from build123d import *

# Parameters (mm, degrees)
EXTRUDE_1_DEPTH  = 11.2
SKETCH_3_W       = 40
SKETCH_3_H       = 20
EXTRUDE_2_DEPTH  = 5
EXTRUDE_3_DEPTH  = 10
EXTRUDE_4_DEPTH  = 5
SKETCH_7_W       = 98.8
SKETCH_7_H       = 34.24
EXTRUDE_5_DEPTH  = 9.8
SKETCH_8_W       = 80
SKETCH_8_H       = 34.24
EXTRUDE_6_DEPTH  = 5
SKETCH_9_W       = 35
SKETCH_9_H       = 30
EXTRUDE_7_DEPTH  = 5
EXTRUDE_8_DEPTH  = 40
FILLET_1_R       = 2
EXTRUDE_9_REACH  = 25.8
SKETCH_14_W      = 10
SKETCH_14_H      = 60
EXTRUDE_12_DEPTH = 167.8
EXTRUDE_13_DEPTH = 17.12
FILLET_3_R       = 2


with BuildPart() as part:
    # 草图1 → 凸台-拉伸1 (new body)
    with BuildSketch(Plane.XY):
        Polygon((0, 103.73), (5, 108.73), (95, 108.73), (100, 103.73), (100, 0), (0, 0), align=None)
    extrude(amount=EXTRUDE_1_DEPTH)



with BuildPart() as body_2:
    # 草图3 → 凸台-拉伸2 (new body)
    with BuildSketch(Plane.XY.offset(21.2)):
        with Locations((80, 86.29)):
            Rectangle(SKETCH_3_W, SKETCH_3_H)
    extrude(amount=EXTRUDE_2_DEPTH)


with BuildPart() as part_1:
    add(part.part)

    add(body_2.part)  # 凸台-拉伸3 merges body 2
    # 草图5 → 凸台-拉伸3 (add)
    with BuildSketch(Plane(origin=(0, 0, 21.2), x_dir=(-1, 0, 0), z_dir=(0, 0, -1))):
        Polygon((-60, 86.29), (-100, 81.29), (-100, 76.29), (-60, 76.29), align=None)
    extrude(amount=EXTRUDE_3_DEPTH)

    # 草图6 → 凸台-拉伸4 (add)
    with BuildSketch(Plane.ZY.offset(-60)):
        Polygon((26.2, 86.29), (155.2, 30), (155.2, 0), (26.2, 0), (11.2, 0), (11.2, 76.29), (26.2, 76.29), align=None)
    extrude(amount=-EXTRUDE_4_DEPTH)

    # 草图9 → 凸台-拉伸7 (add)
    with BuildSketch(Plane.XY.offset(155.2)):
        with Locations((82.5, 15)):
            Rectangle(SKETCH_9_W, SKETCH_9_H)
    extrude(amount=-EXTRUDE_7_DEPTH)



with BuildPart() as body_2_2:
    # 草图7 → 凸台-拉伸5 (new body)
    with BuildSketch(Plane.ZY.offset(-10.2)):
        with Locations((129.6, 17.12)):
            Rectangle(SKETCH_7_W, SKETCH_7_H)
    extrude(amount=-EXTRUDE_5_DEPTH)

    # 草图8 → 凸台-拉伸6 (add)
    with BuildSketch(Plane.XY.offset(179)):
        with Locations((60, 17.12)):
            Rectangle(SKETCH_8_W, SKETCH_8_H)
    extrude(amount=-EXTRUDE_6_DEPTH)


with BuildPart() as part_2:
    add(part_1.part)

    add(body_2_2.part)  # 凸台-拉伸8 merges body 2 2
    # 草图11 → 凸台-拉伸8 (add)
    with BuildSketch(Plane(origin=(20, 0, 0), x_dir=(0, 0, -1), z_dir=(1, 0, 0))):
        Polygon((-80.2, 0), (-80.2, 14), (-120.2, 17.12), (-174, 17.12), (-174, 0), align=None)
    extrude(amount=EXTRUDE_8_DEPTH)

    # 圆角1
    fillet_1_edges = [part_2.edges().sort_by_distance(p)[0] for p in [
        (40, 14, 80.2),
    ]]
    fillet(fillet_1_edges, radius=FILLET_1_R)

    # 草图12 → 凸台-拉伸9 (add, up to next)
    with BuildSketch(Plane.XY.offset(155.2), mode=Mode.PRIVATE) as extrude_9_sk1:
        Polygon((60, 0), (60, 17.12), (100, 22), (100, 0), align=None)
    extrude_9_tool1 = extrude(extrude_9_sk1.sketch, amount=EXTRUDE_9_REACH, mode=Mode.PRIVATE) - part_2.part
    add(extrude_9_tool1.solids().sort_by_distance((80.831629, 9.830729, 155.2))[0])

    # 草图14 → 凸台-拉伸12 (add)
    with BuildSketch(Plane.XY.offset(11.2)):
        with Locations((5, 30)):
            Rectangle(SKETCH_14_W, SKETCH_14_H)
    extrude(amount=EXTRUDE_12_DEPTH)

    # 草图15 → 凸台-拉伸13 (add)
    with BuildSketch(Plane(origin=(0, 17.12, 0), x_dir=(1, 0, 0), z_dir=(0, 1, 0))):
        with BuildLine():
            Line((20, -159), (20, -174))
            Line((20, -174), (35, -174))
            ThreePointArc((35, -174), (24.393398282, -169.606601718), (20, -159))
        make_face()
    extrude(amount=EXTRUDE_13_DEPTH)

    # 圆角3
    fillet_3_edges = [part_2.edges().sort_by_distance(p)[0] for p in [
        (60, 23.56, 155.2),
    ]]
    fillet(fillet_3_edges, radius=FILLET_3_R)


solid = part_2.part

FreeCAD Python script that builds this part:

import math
import FreeCAD as App
import Part
import Sketcher
from FreeCAD import Vector
Q = App.Units.Quantity


def edges_at(feature, points):
    """Names of the edges that pass closest to the given points."""
    edges = feature.Shape.Edges
    near = lambda p: min(range(len(edges)), key=lambda i: edges[i].distToShape(Part.Vertex(*p))[0])
    return sorted({f"Edge{near(p) + 1}" for p in points})


def add_polygon(sketch, points):
    """Adds a closed chain of lines whose ends are joined by coincident constraints."""
    first, n = sketch.GeometryCount, len(points)
    for a, b in zip(points, points[1:] + points[:1]):
        sketch.addGeometry(Part.LineSegment(App.Vector(*a, 0), App.Vector(*b, 0)), False)
    for i in range(n):
        sketch.addConstraint(Sketcher.Constraint("Coincident", first + i, 2, first + (i + 1) % n, 1))

doc = App.newDocument("Part")
body = doc.addObject("PartDesign::Body", "Body")

# Sketch on XY plane
sketch1 = doc.addObject("Sketcher::SketchObject", "Sketch")
body.addObject(sketch1)
sketch1.AttachmentSupport = (doc.XY_Plane, [""])
sketch1.MapMode = "FlatFace"
add_polygon(sketch1, [(5, 109), (0, 104), (0, 0), (100, 0), (100, 104), (95, 109)])  # lines 0-5
sketch1.addConstraint(Sketcher.Constraint("Vertical", 1))
sketch1.addConstraint(Sketcher.Constraint("Horizontal", 2))
sketch1.addConstraint(Sketcher.Constraint("Vertical", 3))
sketch1.addConstraint(Sketcher.Constraint("Horizontal", 5))
sketch1.addConstraint(Sketcher.Constraint("Coincident", 1, 2, -1, 1))
sketch1.addConstraint(Sketcher.Constraint("Perpendicular", 0, 4))
sketch1.addConstraint(Sketcher.Constraint("Horizontal", 0, 2, 3, 2))
sketch1.addConstraint(Sketcher.Constraint("Equal", 0, 4))
sketch1.addConstraint(Sketcher.Constraint("DistanceX", 2, 1, 2, 2, Q("100 mm")))
sketch1.addConstraint(Sketcher.Constraint("DistanceX", 5, 2, 5, 1, Q("90 mm")))
sketch1.addConstraint(Sketcher.Constraint("DistanceY", 1, 2, 1, 1, Q("103.73 mm")))
pad1 = doc.addObject("PartDesign::Pad", "Pad")
body.addObject(pad1)
pad1.Profile = sketch1
pad1.Length = 11.2
body2 = doc.addObject("PartDesign::Body", "Body001")

# Sketch on XY plane
sketch2 = doc.addObject("Sketcher::SketchObject", "Sketch001")
body2.addObject(sketch2)
sketch2.AttachmentSupport = (doc.getObject("XY_Plane001"), [""])
sketch2.MapMode = "FlatFace"
sketch2.AttachmentOffset = App.Placement(Vector(0, 0, 21.2), App.Rotation())
add_polygon(sketch2, [(60, 96), (60, 76), (100, 76), (100, 96)])  # lines 0-3
sketch2.addConstraint(Sketcher.Constraint("Vertical", 0))
sketch2.addConstraint(Sketcher.Constraint("Horizontal", 1))
sketch2.addConstraint(Sketcher.Constraint("Vertical", 2))
sketch2.addConstraint(Sketcher.Constraint("Horizontal", 3))
sketch2.addConstraint(Sketcher.Constraint("DistanceX", 1, 1, 1, 2, Q("40 mm")))
sketch2.addConstraint(Sketcher.Constraint("DistanceY", 0, 2, 0, 1, Q("20 mm")))
sketch2.addConstraint(Sketcher.Constraint("DistanceX", -1, 1, 0, 2, Q("60 mm")))
sketch2.addConstraint(Sketcher.Constraint("DistanceY", -1, 1, 0, 2, Q("76.29 mm")))
pad2 = doc.addObject("PartDesign::Pad", "Pad001")
body2.addObject(pad2)
pad2.Profile = sketch2
pad2.Length = 5
body.AllowCompound = True
doc.recompute()

boolean = doc.addObject("PartDesign::Boolean", "Boolean")
body.addObject(boolean)
boolean.Type = "Fuse"
boolean.addObjects([body2])

# Sketch on XY plane
sketch3 = doc.addObject("Sketcher::SketchObject", "Sketch002")
body.addObject(sketch3)
sketch3.AttachmentSupport = (doc.XY_Plane, [""])
sketch3.MapMode = "FlatFace"
sketch3.AttachmentOffset = App.Placement(Vector(0, 0, 21.2), App.Rotation())
add_polygon(sketch3, [(60, 86), (100, 81), (100, 76), (60, 76)])  # lines 0-3
sketch3.addConstraint(Sketcher.Constraint("Vertical", 1))
sketch3.addConstraint(Sketcher.Constraint("Horizontal", 2))
sketch3.addConstraint(Sketcher.Constraint("Vertical", 3))
sketch3.addConstraint(Sketcher.Constraint("DistanceX", 2, 2, 2, 1, Q("40 mm")))
sketch3.addConstraint(Sketcher.Constraint("DistanceY", 1, 2, 1, 1, Q("5 mm")))
sketch3.addConstraint(Sketcher.Constraint("DistanceY", 3, 1, 3, 2, Q("10 mm")))
sketch3.addConstraint(Sketcher.Constraint("DistanceX", -1, 1, 0, 2, Q("100 mm")))
sketch3.addConstraint(Sketcher.Constraint("DistanceY", -1, 1, 0, 2, Q("81.29 mm")))
pad3 = doc.addObject("PartDesign::Pad", "Pad002")
body.addObject(pad3)
pad3.Profile = sketch3
pad3.Length = 10
pad3.Reversed = True

# Sketch on YZ plane
sketch4 = doc.addObject("Sketcher::SketchObject", "Sketch003")
body.addObject(sketch4)
sketch4.AttachmentSupport = (doc.YZ_Plane, [""])
sketch4.MapMode = "FlatFace"
sketch4.AttachmentOffset = App.Placement(Vector(0, 0, 60), App.Rotation())
add_polygon(sketch4, [(30, 155), (86, 26), (76, 26), (76, 11), (0, 11), (0, 155)])  # lines 0-5
sketch4.addConstraint(Sketcher.Constraint("Horizontal", 1))
sketch4.addConstraint(Sketcher.Constraint("Vertical", 2))
sketch4.addConstraint(Sketcher.Constraint("Horizontal", 3))
sketch4.addConstraint(Sketcher.Constraint("Vertical", 4))
sketch4.addConstraint(Sketcher.Constraint("Horizontal", 5))
sketch4.addConstraint(Sketcher.Constraint("PointOnObject", 3, 2, -2))
sketch4.addConstraint(Sketcher.Constraint("DistanceX", 1, 2, 1, 1, Q("10 mm")))
sketch4.addConstraint(Sketcher.Constraint("DistanceX", 5, 1, 5, 2, Q("30 mm")))
sketch4.addConstraint(Sketcher.Constraint("DistanceY", 2, 2, 2, 1, Q("15 mm")))
sketch4.addConstraint(Sketcher.Constraint("DistanceY", 4, 1, 4, 2, Q("144 mm")))
sketch4.addConstraint(Sketcher.Constraint("DistanceX", 3, 2, 3, 1, Q("76.29 mm")))
sketch4.addConstraint(Sketcher.Constraint("DistanceY", -1, 1, 0, 2, Q("26.2 mm")))
pad4 = doc.addObject("PartDesign::Pad", "Pad003")
body.addObject(pad4)
pad4.Profile = sketch4
pad4.Length = 5

# Sketch on XY plane
sketch5 = doc.addObject("Sketcher::SketchObject", "Sketch004")
body.addObject(sketch5)
sketch5.AttachmentSupport = (doc.XY_Plane, [""])
sketch5.MapMode = "FlatFace"
sketch5.AttachmentOffset = App.Placement(Vector(0, 0, 155.2), App.Rotation())
add_polygon(sketch5, [(65, 30), (65, 0), (100, 0), (100, 30)])  # lines 0-3
sketch5.addConstraint(Sketcher.Constraint("Vertical", 0))
sketch5.addConstraint(Sketcher.Constraint("Horizontal", 1))
sketch5.addConstraint(Sketcher.Constraint("Vertical", 2))
sketch5.addConstraint(Sketcher.Constraint("Horizontal", 3))
sketch5.addConstraint(Sketcher.Constraint("PointOnObject", 0, 2, -1))
sketch5.addConstraint(Sketcher.Constraint("DistanceX", 1, 1, 1, 2, Q("35 mm")))
sketch5.addConstraint(Sketcher.Constraint("DistanceY", 0, 2, 0, 1, Q("30 mm")))
sketch5.addConstraint(Sketcher.Constraint("DistanceX", -1, 1, 0, 2, Q("65 mm")))
pad5 = doc.addObject("PartDesign::Pad", "Pad004")
body.addObject(pad5)
pad5.Profile = sketch5
pad5.Length = 5
pad5.Reversed = True
body3 = doc.addObject("PartDesign::Body", "Body002")

# Sketch on YZ plane
sketch6 = doc.addObject("Sketcher::SketchObject", "Sketch005")
body3.addObject(sketch6)
sketch6.AttachmentSupport = (doc.getObject("YZ_Plane002"), [""])
sketch6.MapMode = "FlatFace"
sketch6.AttachmentOffset = App.Placement(Vector(0, 0, 10.2), App.Rotation())
add_polygon(sketch6, [(34, 80), (0, 80), (0, 179), (34, 179)])  # lines 0-3
sketch6.addConstraint(Sketcher.Constraint("Horizontal", 0))
sketch6.addConstraint(Sketcher.Constraint("Vertical", 1))
sketch6.addConstraint(Sketcher.Constraint("Horizontal", 2))
sketch6.addConstraint(Sketcher.Constraint("Vertical", 3))
sketch6.addConstraint(Sketcher.Constraint("PointOnObject", 0, 2, -2))
sketch6.addConstraint(Sketcher.Constraint("DistanceY", 1, 1, 1, 2, Q("98.8 mm")))
sketch6.addConstraint(Sketcher.Constraint("DistanceY", -1, 1, 1, 2, Q("179 mm")))
sketch6.addConstraint(Sketcher.Constraint("DistanceX", 0, 2, 0, 1, Q("34.24 mm")))
pad6 = doc.addObject("PartDesign::Pad", "Pad005")
body3.addObject(pad6)
pad6.Profile = sketch6
pad6.Length = 9.8

# Sketch on XY plane
sketch7 = doc.addObject("Sketcher::SketchObject", "Sketch006")
body3.addObject(sketch7)
sketch7.AttachmentSupport = (doc.getObject("XY_Plane002"), [""])
sketch7.MapMode = "FlatFace"
sketch7.AttachmentOffset = App.Placement(Vector(0, 0, 179), App.Rotation())
add_polygon(sketch7, [(20, 34), (20, 0), (100, 0), (100, 34)])  # lines 0-3
sketch7.addConstraint(Sketcher.Constraint("Vertical", 0))
sketch7.addConstraint(Sketcher.Constraint("Horizontal", 1))
sketch7.addConstraint(Sketcher.Constraint("Vertical", 2))
sketch7.addConstraint(Sketcher.Constraint("Horizontal", 3))
sketch7.addConstraint(Sketcher.Constraint("PointOnObject", 0, 2, -1))
sketch7.addConstraint(Sketcher.Constraint("DistanceX", 1, 1, 1, 2, Q("80 mm")))
sketch7.addConstraint(Sketcher.Constraint("DistanceX", -1, 1, 0, 2, Q("20 mm")))
sketch7.addConstraint(Sketcher.Constraint("DistanceY", 0, 2, 0, 1, Q("34.24 mm")))
pad7 = doc.addObject("PartDesign::Pad", "Pad006")
body3.addObject(pad7)
pad7.Profile = sketch7
pad7.Length = 5
pad7.Reversed = True
body.AllowCompound = True
doc.recompute()

boolean2 = doc.addObject("PartDesign::Boolean", "Boolean001")
body.addObject(boolean2)
boolean2.Type = "Fuse"
boolean2.addObjects([body3])

# Sketch on YZ plane
sketch8 = doc.addObject("Sketcher::SketchObject", "Sketch007")
body.addObject(sketch8)
sketch8.AttachmentSupport = (doc.YZ_Plane, [""])
sketch8.MapMode = "FlatFace"
sketch8.AttachmentOffset = App.Placement(Vector(0, 0, 20), App.Rotation())
add_polygon(sketch8, [(0, 80), (14, 80), (17, 120), (17, 174), (0, 174)])  # lines 0-4
sketch8.addConstraint(Sketcher.Constraint("Horizontal", 0))
sketch8.addConstraint(Sketcher.Constraint("Vertical", 2))
sketch8.addConstraint(Sketcher.Constraint("Horizontal", 3))
sketch8.addConstraint(Sketcher.Constraint("Vertical", 4))
sketch8.addConstraint(Sketcher.Constraint("PointOnObject", 3, 2, -2))
sketch8.addConstraint(Sketcher.Constraint("DistanceX", 0, 1, 0, 2, Q("14 mm")))
sketch8.addConstraint(Sketcher.Constraint("DistanceY", 2, 1, 2, 2, Q("53.8 mm")))
sketch8.addConstraint(Sketcher.Constraint("DistanceY", 4, 2, 4, 1, Q("93.8 mm")))
sketch8.addConstraint(Sketcher.Constraint("DistanceY", -1, 1, 2, 2, Q("174 mm")))
sketch8.addConstraint(Sketcher.Constraint("DistanceX", 3, 2, 3, 1, Q("17.12 mm")))
pad8 = doc.addObject("PartDesign::Pad", "Pad007")
body.addObject(pad8)
pad8.Profile = sketch8
pad8.Length = 40
doc.recompute()

fillet = doc.addObject("PartDesign::Fillet", "Fillet")
body.addObject(fillet)
fillet.Base = (pad8, edges_at(pad8, [(40, 14, 80.2)]))
fillet.Radius = 2

# Sketch on XY plane
sketch9 = doc.addObject("Sketcher::SketchObject", "Sketch008")
body.addObject(sketch9)
sketch9.AttachmentSupport = (doc.XY_Plane, [""])
sketch9.MapMode = "FlatFace"
sketch9.AttachmentOffset = App.Placement(Vector(0, 0, 155.2), App.Rotation())
add_polygon(sketch9, [(60, 17), (60, 0), (100, 0), (100, 22)])  # lines 0-3
sketch9.addConstraint(Sketcher.Constraint("Vertical", 0))
sketch9.addConstraint(Sketcher.Constraint("Horizontal", 1))
sketch9.addConstraint(Sketcher.Constraint("Vertical", 2))
sketch9.addConstraint(Sketcher.Constraint("PointOnObject", 0, 2, -1))
sketch9.addConstraint(Sketcher.Constraint("DistanceX", 1, 1, 1, 2, Q("40 mm")))
sketch9.addConstraint(Sketcher.Constraint("DistanceY", 2, 1, 2, 2, Q("22 mm")))
sketch9.addConstraint(Sketcher.Constraint("DistanceX", -1, 1, 0, 2, Q("60 mm")))
sketch9.addConstraint(Sketcher.Constraint("DistanceY", 0, 2, 0, 1, Q("17.12 mm")))
pad9 = doc.addObject("PartDesign::Pad", "Pad008")
body.addObject(pad9)
pad9.Profile = sketch9
pad9.Type = "UpToFirst"

# Sketch on XY plane
sketch10 = doc.addObject("Sketcher::SketchObject", "Sketch009")
body.addObject(sketch10)
sketch10.AttachmentSupport = (doc.XY_Plane, [""])
sketch10.MapMode = "FlatFace"
sketch10.AttachmentOffset = App.Placement(Vector(0, 0, 11.2), App.Rotation())
add_polygon(sketch10, [(0, 60), (0, 0), (10, 0), (10, 60)])  # lines 0-3
sketch10.addConstraint(Sketcher.Constraint("Vertical", 0))
sketch10.addConstraint(Sketcher.Constraint("Horizontal", 1))
sketch10.addConstraint(Sketcher.Constraint("Vertical", 2))
sketch10.addConstraint(Sketcher.Constraint("Horizontal", 3))
sketch10.addConstraint(Sketcher.Constraint("Coincident", 0, 2, -1, 1))
sketch10.addConstraint(Sketcher.Constraint("DistanceX", 1, 1, 1, 2, Q("10 mm")))
sketch10.addConstraint(Sketcher.Constraint("DistanceY", 0, 2, 0, 1, Q("60 mm")))
pad10 = doc.addObject("PartDesign::Pad", "Pad009")
body.addObject(pad10)
pad10.Profile = sketch10
pad10.Length = 167.8

# Sketch on XZ plane
sketch11 = doc.addObject("Sketcher::SketchObject", "Sketch010")
body.addObject(sketch11)
sketch11.AttachmentSupport = (doc.XZ_Plane, [""])
sketch11.MapMode = "FlatFace"
sketch11.AttachmentOffset = App.Placement(Vector(0, 0, -17.12), App.Rotation())
sketch11.addGeometry(Part.LineSegment(Vector(20, 159, 0), Vector(20, 174, 0)), False)
sketch11.addGeometry(Part.LineSegment(Vector(20, 174, 0), Vector(35, 174, 0)), False)
sketch11.addGeometry(Part.ArcOfCircle(Part.Circle(Vector(35, 159, 0), Vector(0, 0, 1), 15), math.radians(90), math.radians(180)), False)
sketch11.addConstraint(Sketcher.Constraint("Coincident", 0, 2, 1, 1))
sketch11.addConstraint(Sketcher.Constraint("Tangent", 1, 2, 2, 1))
sketch11.addConstraint(Sketcher.Constraint("Tangent", 2, 2, 0, 1))
sketch11.addConstraint(Sketcher.Constraint("Vertical", 0))
sketch11.addConstraint(Sketcher.Constraint("Horizontal", 1))
sketch11.addConstraint(Sketcher.Constraint("Radius", 2, Q("15 mm")))
sketch11.addConstraint(Sketcher.Constraint("DistanceX", -1, 1, 2, 3, Q("35 mm")))
sketch11.addConstraint(Sketcher.Constraint("DistanceY", -1, 1, 2, 3, Q("159 mm")))
pad11 = doc.addObject("PartDesign::Pad", "Pad010")
body.addObject(pad11)
pad11.Profile = sketch11
pad11.Length = 17.12
pad11.Reversed = True
doc.recompute()

fillet2 = doc.addObject("PartDesign::Fillet", "Fillet001")
body.addObject(fillet2)
fillet2.Base = (pad11, edges_at(pad11, [(60, 23.56, 155.2)]))
fillet2.Radius = 2

doc.recompute()
